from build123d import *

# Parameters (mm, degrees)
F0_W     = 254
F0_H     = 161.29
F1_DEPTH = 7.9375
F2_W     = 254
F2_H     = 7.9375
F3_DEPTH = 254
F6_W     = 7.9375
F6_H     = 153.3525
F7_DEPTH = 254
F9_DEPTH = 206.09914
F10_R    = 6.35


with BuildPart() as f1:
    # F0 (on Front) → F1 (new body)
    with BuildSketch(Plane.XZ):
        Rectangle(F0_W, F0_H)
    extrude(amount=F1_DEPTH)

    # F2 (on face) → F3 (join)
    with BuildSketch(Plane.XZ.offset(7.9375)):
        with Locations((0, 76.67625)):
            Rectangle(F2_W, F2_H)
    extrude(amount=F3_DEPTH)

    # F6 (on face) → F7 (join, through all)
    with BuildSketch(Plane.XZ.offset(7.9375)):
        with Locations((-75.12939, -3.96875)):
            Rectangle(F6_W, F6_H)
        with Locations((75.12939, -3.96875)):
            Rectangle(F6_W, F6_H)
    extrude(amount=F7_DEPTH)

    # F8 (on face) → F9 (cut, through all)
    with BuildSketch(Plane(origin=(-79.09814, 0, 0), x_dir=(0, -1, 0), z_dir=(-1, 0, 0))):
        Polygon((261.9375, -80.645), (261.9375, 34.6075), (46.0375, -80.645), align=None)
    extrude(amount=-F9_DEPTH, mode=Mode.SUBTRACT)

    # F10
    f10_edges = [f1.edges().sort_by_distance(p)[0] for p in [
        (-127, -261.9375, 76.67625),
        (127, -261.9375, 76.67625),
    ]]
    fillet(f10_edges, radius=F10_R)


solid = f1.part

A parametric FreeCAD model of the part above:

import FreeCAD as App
import Part
import Sketcher

V = App.Vector
Q = App.Units.Quantity


def edges_at(feature, points):
    """Names of the edges that pass closest to the given points."""
    edges = feature.Shape.Edges
    near = lambda p: min(range(len(edges)), key=lambda i: edges[i].distToShape(Part.Vertex(*p))[0])
    return sorted({f"Edge{near(p) + 1}" for p in points})

doc = App.newDocument("Part")
params = doc.addObject("Spreadsheet::Sheet", "Params")
for row, (alias, value) in enumerate([
    ("sketch1_width", "10 in"),
    ("sketch1_height", "6.35 in"),
    ("pad1_length", "0.3125 in"),
    ("sketch2_width", "10 in"),
    ("sketch2_height", "0.3125 in"),
    ("pad2_length", "10 in"),
    ("sketch3_width", "0.3125 in"),
    ("pad3_length", "10 in"),
    ("sketch4_width", "8.5 in"),
    ("fillet_radius", "0.25 in"),
], start=1):
    params.set(f"A{row}", alias)
    params.set(f"B{row}", "=" + value)
    params.setAlias(f"B{row}", alias)

body = doc.addObject("PartDesign::Body", "Body")

# Sketch on XZ plane
sketch1 = body.newObject("Sketcher::SketchObject", "Sketch")
sketch1.AttachmentSupport = (doc.getObject("XZ_Plane"), [""])
sketch1.MapMode = "FlatFace"
sketch1.addGeometry(Part.LineSegment(V(-127, 81, 0), V(-127, -81, 0)), False)
sketch1.addGeometry(Part.LineSegment(V(-127, -81, 0), V(127, -81, 0)), False)
sketch1.addGeometry(Part.LineSegment(V(127, -81, 0), V(127, 81, 0)), False)
sketch1.addGeometry(Part.LineSegment(V(127, 81, 0), V(-127, 81, 0)), False)
sketch1.addConstraint(Sketcher.Constraint("Coincident", 0, 2, 1, 1))
sketch1.addConstraint(Sketcher.Constraint("Coincident", 1, 2, 2, 1))
sketch1.addConstraint(Sketcher.Constraint("Coincident", 2, 2, 3, 1))
sketch1.addConstraint(Sketcher.Constraint("Coincident", 3, 2, 0, 1))
sketch1.addConstraint(Sketcher.Constraint("Vertical", 0))
sketch1.addConstraint(Sketcher.Constraint("Horizontal", 1))
sketch1.addConstraint(Sketcher.Constraint("Vertical", 2))
sketch1.addConstraint(Sketcher.Constraint("Horizontal", 3))
sketch1.addConstraint(Sketcher.Constraint("Symmetric", 0, 2, 2, 2, -1, 1))
sketch1.addConstraint(Sketcher.Constraint("DistanceX", 1, 1, 1, 2, Q("10 in")))
sketch1.addConstraint(Sketcher.Constraint("DistanceY", 0, 2, 0, 1, Q("6.35 in")))
sketch1.setExpression("Constraints[9]", "Params.sketch1_width")
sketch1.setExpression("Constraints[10]", "Params.sketch1_height")
pad1 = body.newObject("PartDesign::Pad", "Pad")
pad1.Profile = sketch1
pad1.setExpression("Length", "Params.pad1_length")

# Sketch on XZ plane
sketch2 = body.newObject("Sketcher::SketchObject", "Sketch001")
sketch2.AttachmentSupport = (doc.getObject("XZ_Plane"), [""])
sketch2.MapMode = "FlatFace"
sketch2.AttachmentOffset = App.Placement(V(0, 0, 0.3125 * 25.4), App.Rotation())
sketch2.addGeometry(Part.LineSegment(V(-127, 81, 0), V(-127, 73, 0)), False)
sketch2.addGeometry(Part.LineSegment(V(-127, 73, 0), V(127, 73, 0)), False)
sketch2.addGeometry(Part.LineSegment(V(127, 73, 0), V(127, 81, 0)), False)
sketch2.addGeometry(Part.LineSegment(V(127, 81, 0), V(-127, 81, 0)), False)
sketch2.addConstraint(Sketcher.Constraint("Coincident", 0, 2, 1, 1))
sketch2.addConstraint(Sketcher.Constraint("Coincident", 1, 2, 2, 1))
sketch2.addConstraint(Sketcher.Constraint("Coincident", 2, 2, 3, 1))
sketch2.addConstraint(Sketcher.Constraint("Coincident", 3, 2, 0, 1))
sketch2.addConstraint(Sketcher.Constraint("Vertical", 0))
sketch2.addConstraint(Sketcher.Constraint("Horizontal", 1))
sketch2.addConstraint(Sketcher.Constraint("Vertical", 2))
sketch2.addConstraint(Sketcher.Constraint("Horizontal", 3))
sketch2.addConstraint(Sketcher.Constraint("DistanceX", 1, 1, 1, 2, Q("10 in")))
sketch2.addConstraint(Sketcher.Constraint("DistanceX", 0, 2, -1, 1, Q("5 in")))
sketch2.addConstraint(Sketcher.Constraint("DistanceY", 0, 2, 0, 1, Q("0.3125 in")))
sketch2.addConstraint(Sketcher.Constraint("DistanceY", -1, 1, 2, 2, Q("3.175 in")))
sketch2.setExpression("Constraints[8]", "Params.sketch2_width")
sketch2.setExpression("Constraints[10]", "Params.sketch2_height")
pad2 = body.newObject("PartDesign::Pad", "Pad001")
pad2.Profile = sketch2
pad2.setExpression("Length", "Params.pad2_length")

# Sketch on XZ plane
sketch3 = body.newObject("Sketcher::SketchObject", "Sketch002")
sketch3.AttachmentSupport = (doc.getObject("XZ_Plane"), [""])
sketch3.MapMode = "FlatFace"
sketch3.AttachmentOffset = App.Placement(V(0, 0, 0.3125 * 25.4), App.Rotation())
sketch3.addGeometry(Part.LineSegment(V(-79, 73, 0), V(-79, -81, 0)), False)
sketch3.addGeometry(Part.LineSegment(V(-79, -81, 0), V(-71, -81, 0)), False)
sketch3.addGeometry(Part.LineSegment(V(-71, -81, 0), V(-71, 73, 0)), False)
sketch3.addGeometry(Part.LineSegment(V(-71, 73, 0), V(-79, 73, 0)), False)
sketch3.addGeometry(Part.LineSegment(V(71, 73, 0), V(71, -81, 0)), False)
sketch3.addGeometry(Part.LineSegment(V(71, -81, 0), V(79, -81, 0)), False)
sketch3.addGeometry(Part.LineSegment(V(79, -81, 0), V(79, 73, 0)), False)
sketch3.addGeometry(Part.LineSegment(V(79, 73, 0), V(71, 73, 0)), False)
sketch3.addConstraint(Sketcher.Constraint("Coincident", 0, 2, 1, 1))
sketch3.addConstraint(Sketcher.Constraint("Coincident", 1, 2, 2, 1))
sketch3.addConstraint(Sketcher.Constraint("Coincident", 2, 2, 3, 1))
sketch3.addConstraint(Sketcher.Constraint("Coincident", 3, 2, 0, 1))
sketch3.addConstraint(Sketcher.Constraint("Coincident", 4, 2, 5, 1))
sketch3.addConstraint(Sketcher.Constraint("Coincident", 5, 2, 6, 1))
sketch3.addConstraint(Sketcher.Constraint("Coincident", 6, 2, 7, 1))
sketch3.addConstraint(Sketcher.Constraint("Coincident", 7, 2, 4, 1))
sketch3.addConstraint(Sketcher.Constraint("Vertical", 0))
sketch3.addConstraint(Sketcher.Constraint("Horizontal", 1))
sketch3.addConstraint(Sketcher.Constraint("Vertical", 2))
sketch3.addConstraint(Sketcher.Constraint("Horizontal", 3))
sketch3.addConstraint(Sketcher.Constraint("Vertical", 4))
sketch3.addConstraint(Sketcher.Constraint("Horizontal", 5))
sketch3.addConstraint(Sketcher.Constraint("Vertical", 6))
sketch3.addConstraint(Sketcher.Constraint("Horizontal", 7))
sketch3.addConstraint(Sketcher.Constraint("Symmetric", 1, 2, 4, 2, -2))
sketch3.addConstraint(Sketcher.Constraint("Symmetric", 3, 2, 6, 2, -2))
sketch3.addConstraint(Sketcher.Constraint("DistanceX", 1, 1, 1, 2, Q("0.3125 in")))
sketch3.addConstraint(Sketcher.Constraint("DistanceY", 0, 2, 0, 1, Q("6.0375 in")))
sketch3.addConstraint(Sketcher.Constraint("DistanceY", 0, 2, -1, 1, Q("3.175 in")))
sketch3.addConstraint(Sketcher.Constraint("DistanceX", 0, 2, -1, 1, Q("3.1141 in")))
sketch3.setExpression("Constraints[18]", "Params.sketch3_width")
pad3 = body.newObject("PartDesign::Pad", "Pad002")
pad3.Profile = sketch3
pad3.setExpression("Length", "Params.pad3_length")

# Sketch on YZ plane
sketch4 = body.newObject("Sketcher::SketchObject", "Sketch003")
sketch4.AttachmentSupport = (doc.getObject("YZ_Plane"), [""])
sketch4.MapMode = "FlatFace"
sketch4.AttachmentOffset = App.Placement(V(0, 0, -3.1141 * 25.4), App.Rotation())
sketch4.addGeometry(Part.LineSegment(V(-262, -81, 0), V(-262, 35, 0)), False)
sketch4.addGeometry(Part.LineSegment(V(-262, 35, 0), V(-46, -81, 0)), False)
sketch4.addGeometry(Part.LineSegment(V(-46, -81, 0), V(-262, -81, 0)), False)
sketch4.addConstraint(Sketcher.Constraint("Coincident", 0, 2, 1, 1))
sketch4.addConstraint(Sketcher.Constraint("Coincident", 1, 2, 2, 1))
sketch4.addConstraint(Sketcher.Constraint("Coincident", 2, 2, 0, 1))
sketch4.addConstraint(Sketcher.Constraint("Vertical", 0))
sketch4.addConstraint(Sketcher.Constraint("Horizontal", 2))
sketch4.addConstraint(Sketcher.Constraint("DistanceX", 2, 2, 2, 1, Q("8.5 in")))
sketch4.addConstraint(Sketcher.Constraint("DistanceY", 0, 1, 0, 2, Q("4.5375 in")))
sketch4.addConstraint(Sketcher.Constraint("DistanceX", 0, 2, -1, 1, Q("10.3125 in")))
sketch4.addConstraint(Sketcher.Constraint("DistanceY", 1, 2, -1, 1, Q("3.175 in")))
sketch4.setExpression("Constraints[5]", "Params.sketch4_width")
pocket1 = body.newObject("PartDesign::Pocket", "Pocket")
pocket1.Profile = sketch4
pocket1.Type = "ThroughAll"
pocket1.Reversed = True
doc.recompute()

fillet = body.newObject("PartDesign::Fillet", "Fillet")
fillet.Base = (pocket1, edges_at(pocket1, [(-127, -261.938, 76.676), (127, -261.938, 76.676)]))
fillet.setExpression("Radius", "Params.fillet_radius")

doc.recompute()
